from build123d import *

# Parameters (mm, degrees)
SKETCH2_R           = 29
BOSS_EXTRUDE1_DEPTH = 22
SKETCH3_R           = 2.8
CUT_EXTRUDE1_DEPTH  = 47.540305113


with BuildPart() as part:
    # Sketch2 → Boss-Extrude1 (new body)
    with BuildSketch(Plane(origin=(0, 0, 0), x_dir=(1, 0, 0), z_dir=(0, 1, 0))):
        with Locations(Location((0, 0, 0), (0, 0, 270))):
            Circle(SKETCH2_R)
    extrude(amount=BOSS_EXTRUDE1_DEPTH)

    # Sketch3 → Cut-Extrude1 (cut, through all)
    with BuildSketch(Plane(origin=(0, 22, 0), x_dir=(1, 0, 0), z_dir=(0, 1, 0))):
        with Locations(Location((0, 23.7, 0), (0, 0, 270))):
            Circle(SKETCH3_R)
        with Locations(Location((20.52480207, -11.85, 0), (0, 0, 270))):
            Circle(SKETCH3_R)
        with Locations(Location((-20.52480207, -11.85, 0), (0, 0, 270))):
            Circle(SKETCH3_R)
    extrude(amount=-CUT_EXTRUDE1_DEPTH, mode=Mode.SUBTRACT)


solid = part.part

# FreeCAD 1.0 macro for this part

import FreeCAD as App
import Part
import Sketcher

V = App.Vector
Q = App.Units.Quantity

doc = App.newDocument("Part")
body = doc.addObject("PartDesign::Body", "Body")

sketch1 = body.newObject("Sketcher::SketchObject", "Sketch")
sketch1.AttachmentSupport = (doc.getObject("XZ_Plane"), [""])
sketch1.MapMode = "FlatFace"
sketch1.addGeometry(Part.Circle(V(0, 0, 0), V(0, 0, 1), 29), False)
sketch1.addConstraint([
    Sketcher.Constraint("Coincident", 0, 3, -1, 1),
    Sketcher.Constraint("Diameter", 0, Q("58 mm")),
])
pad1 = body.newObject("PartDesign::Pad", "Pad")
pad1.Profile = sketch1
pad1.Length = 22
pad1.Reversed = True

sketch2 = body.newObject("Sketcher::SketchObject", "Sketch001")
sketch2.AttachmentSupport = (doc.getObject("XZ_Plane"), [""])
sketch2.MapMode = "FlatFace"
sketch2.AttachmentOffset = App.Placement(V(0, 0, -22), App.Rotation())
sketch2.addGeometry([
    Part.Circle(V(0, -23.7, 0), V(0, 0, 1), 2.8),
    Part.Circle(V(20.5, 11.8, 0), V(0, 0, 1), 2.8),
    Part.Circle(V(-20.5, 11.8, 0), V(0, 0, 1), 2.8),
], False)
sketch2.addConstraint([
    Sketcher.Constraint("Equal", 0, 1),
    Sketcher.Constraint("Equal", 1, 2),
    Sketcher.Constraint("Symmetric", 1, 3, 2, 3, -2),
    Sketcher.Constraint("PointOnObject", 0, 3, -2),
    Sketcher.Constraint("Diameter", 0, Q("5.6 mm")),
    Sketcher.Constraint("DistanceY", 0, 3, -1, 1, Q("23.7 mm")),
    Sketcher.Constraint("DistanceY", -1, 1, 1, 3, Q("11.85 mm")),
    Sketcher.Constraint("DistanceX", -1, 1, 1, 3, Q("20.524802 mm")),
])
pocket1 = body.newObject("PartDesign::Pocket", "Pocket")
pocket1.Profile = sketch2
pocket1.Type = "ThroughAll"
pocket1.Reversed = True

doc.recompute()
